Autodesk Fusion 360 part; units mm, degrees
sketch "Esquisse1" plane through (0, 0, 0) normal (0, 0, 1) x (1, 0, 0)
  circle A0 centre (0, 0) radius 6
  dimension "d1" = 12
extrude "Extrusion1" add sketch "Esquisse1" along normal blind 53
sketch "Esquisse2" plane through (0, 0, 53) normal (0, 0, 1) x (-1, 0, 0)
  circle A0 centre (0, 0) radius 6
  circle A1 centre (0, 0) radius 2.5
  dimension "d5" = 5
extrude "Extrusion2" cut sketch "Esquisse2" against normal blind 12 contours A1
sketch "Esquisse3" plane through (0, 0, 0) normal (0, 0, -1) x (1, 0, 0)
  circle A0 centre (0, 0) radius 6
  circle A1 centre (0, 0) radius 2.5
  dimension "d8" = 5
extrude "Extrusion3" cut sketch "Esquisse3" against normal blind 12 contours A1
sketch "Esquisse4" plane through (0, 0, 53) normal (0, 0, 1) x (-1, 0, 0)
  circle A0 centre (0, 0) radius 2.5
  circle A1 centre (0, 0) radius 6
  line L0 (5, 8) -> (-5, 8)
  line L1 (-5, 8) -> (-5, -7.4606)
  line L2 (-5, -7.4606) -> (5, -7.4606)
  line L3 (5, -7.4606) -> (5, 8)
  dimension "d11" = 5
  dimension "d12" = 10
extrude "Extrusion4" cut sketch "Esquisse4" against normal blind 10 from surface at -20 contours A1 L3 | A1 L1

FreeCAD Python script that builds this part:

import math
import FreeCAD as App
import Part
import Sketcher

doc = App.newDocument("Part")
params = doc.addObject("Spreadsheet::Sheet", "Params")
for row, (alias, value) in enumerate([
    ("sketch1_diameter", "12 mm"),
    ("pad1_length", "53 mm"),
    ("sketch2_diameter", "5 mm"),
    ("pocket1_length", "12 mm"),
    ("sketch3_diameter", "5 mm"),
    ("pocket2_length", "12 mm"),
    ("sketch4_radius", "6 mm"),
    ("pocket3_length", "10 mm"),
], start=1):
    params.set(f"A{row}", alias)
    params.set(f"B{row}", "=" + value)
    params.setAlias(f"B{row}", alias)

body = doc.addObject("PartDesign::Body", "Body")

# Sketch on XY plane
sketch1 = doc.addObject("Sketcher::SketchObject", "Sketch")
body.addObject(sketch1)
sketch1.AttachmentSupport = (doc.XY_Plane, [""])
sketch1.MapMode = "FlatFace"
sketch1.addGeometry(Part.Circle(App.Vector(0, 0, 0), App.Vector(0, 0, 1), 6), False)
sketch1.addConstraint(Sketcher.Constraint("Coincident", 0, 3, -1, 1))
sketch1.addConstraint(Sketcher.Constraint("Diameter", 0, 12.0))
sketch1.setExpression("Constraints[1]", "Params.sketch1_diameter")
pad1 = doc.addObject("PartDesign::Pad", "Pad")
body.addObject(pad1)
pad1.Profile = sketch1
pad1.setExpression("Length", "Params.pad1_length")

# Sketch on XY plane
sketch2 = doc.addObject("Sketcher::SketchObject", "Sketch001")
body.addObject(sketch2)
sketch2.AttachmentSupport = (doc.XY_Plane, [""])
sketch2.MapMode = "FlatFace"
sketch2.AttachmentOffset = App.Placement(App.Vector(0, 0, 53), App.Rotation())
sketch2.addGeometry(Part.Circle(App.Vector(0, 0, 0), App.Vector(0, 0, 1), 2.5), False)
sketch2.addConstraint(Sketcher.Constraint("Coincident", 0, 3, -1, 1))
sketch2.addConstraint(Sketcher.Constraint("Diameter", 0, 5.0))
sketch2.setExpression("Constraints[1]", "Params.sketch2_diameter")
pocket1 = doc.addObject("PartDesign::Pocket", "Pocket")
body.addObject(pocket1)
pocket1.Profile = sketch2
pocket1.setExpression("Length", "Params.pocket1_length")

# Sketch on XY plane
sketch3 = doc.addObject("Sketcher::SketchObject", "Sketch002")
body.addObject(sketch3)
sketch3.AttachmentSupport = (doc.XY_Plane, [""])
sketch3.MapMode = "FlatFace"
sketch3.addGeometry(Part.Circle(App.Vector(0, 0, 0), App.Vector(0, 0, 1), 2.5), False)
sketch3.addConstraint(Sketcher.Constraint("Coincident", 0, 3, -1, 1))
sketch3.addConstraint(Sketcher.Constraint("Diameter", 0, 5.0))
sketch3.setExpression("Constraints[1]", "Params.sketch3_diameter")
pocket2 = doc.addObject("PartDesign::Pocket", "Pocket001")
body.addObject(pocket2)
pocket2.Profile = sketch3
pocket2.setExpression("Length", "Params.pocket2_length")
pocket2.Reversed = True

# Sketch on XY plane
sketch4 = doc.addObject("Sketcher::SketchObject", "Sketch003")
body.addObject(sketch4)
sketch4.AttachmentSupport = (doc.XY_Plane, [""])
sketch4.MapMode = "FlatFace"
sketch4.AttachmentOffset = App.Placement(App.Vector(0, 0, 33), App.Rotation())
sketch4.addGeometry(Part.ArcOfCircle(Part.Circle(App.Vector(0, 0, 0), App.Vector(0, 0, 1), 6), math.radians(146), math.radians(214)), False)
sketch4.addGeometry(Part.LineSegment(App.Vector(-5, -3, 0), App.Vector(-5, 3, 0)), False)
sketch4.addGeometry(Part.LineSegment(App.Vector(5, 3, 0), App.Vector(5, -3, 0)), False)
sketch4.addGeometry(Part.ArcOfCircle(Part.Circle(App.Vector(0, 0, 0), App.Vector(0, 0, 1), 6), math.radians(-34), math.radians(34)), False)
sketch4.addConstraint(Sketcher.Constraint("Coincident", 0, 1, 1, 2))
sketch4.addConstraint(Sketcher.Constraint("Coincident", 1, 1, 0, 2))
sketch4.addConstraint(Sketcher.Constraint("Coincident", 2, 1, 3, 2))
sketch4.addConstraint(Sketcher.Constraint("Coincident", 3, 1, 2, 2))
sketch4.addConstraint(Sketcher.Constraint("Vertical", 1))
sketch4.addConstraint(Sketcher.Constraint("Vertical", 2))
sketch4.addConstraint(Sketcher.Constraint("Coincident", 0, 3, -1, 1))
sketch4.addConstraint(Sketcher.Constraint("Coincident", 3, 3, -1, 1))
sketch4.addConstraint(Sketcher.Constraint("Equal", 0, 3))
sketch4.addConstraint(Sketcher.Constraint("Horizontal", 0, 1, 2, 1))
sketch4.addConstraint(Sketcher.Constraint("DistanceX", 0, 1, -1, 1, 5.0))
sketch4.addConstraint(Sketcher.Constraint("Radius", 0, 6.0))
sketch4.setExpression("Constraints[11]", "Params.sketch4_radius")
pocket3 = doc.addObject("PartDesign::Pocket", "Pocket002")
body.addObject(pocket3)
pocket3.Profile = sketch4
pocket3.setExpression("Length", "Params.pocket3_length")

doc.recompute()
